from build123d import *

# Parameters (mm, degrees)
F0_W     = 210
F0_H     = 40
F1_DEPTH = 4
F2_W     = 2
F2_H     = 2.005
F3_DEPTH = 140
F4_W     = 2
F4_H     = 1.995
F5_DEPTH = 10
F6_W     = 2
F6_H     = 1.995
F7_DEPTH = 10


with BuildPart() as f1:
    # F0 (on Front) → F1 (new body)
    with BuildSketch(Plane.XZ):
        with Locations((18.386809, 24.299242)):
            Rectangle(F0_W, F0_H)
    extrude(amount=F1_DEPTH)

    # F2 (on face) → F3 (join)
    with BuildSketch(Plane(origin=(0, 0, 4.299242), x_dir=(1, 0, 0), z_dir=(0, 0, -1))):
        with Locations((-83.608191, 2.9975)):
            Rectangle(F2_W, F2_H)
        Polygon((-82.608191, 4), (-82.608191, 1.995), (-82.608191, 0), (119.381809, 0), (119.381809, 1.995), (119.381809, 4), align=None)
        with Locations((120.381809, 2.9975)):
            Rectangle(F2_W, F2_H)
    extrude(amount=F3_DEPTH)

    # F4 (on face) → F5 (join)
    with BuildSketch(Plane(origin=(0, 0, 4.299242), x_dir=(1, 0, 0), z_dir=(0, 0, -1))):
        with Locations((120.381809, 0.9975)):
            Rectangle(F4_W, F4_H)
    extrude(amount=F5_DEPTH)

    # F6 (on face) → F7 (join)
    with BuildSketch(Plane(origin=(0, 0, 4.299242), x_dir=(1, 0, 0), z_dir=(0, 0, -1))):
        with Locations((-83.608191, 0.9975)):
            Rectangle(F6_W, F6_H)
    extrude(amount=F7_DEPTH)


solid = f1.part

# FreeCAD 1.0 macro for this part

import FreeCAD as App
import Part
import Sketcher
from FreeCAD import Vector


def add_polygon(sketch, points):
    """Adds a closed chain of lines whose ends are joined by coincident constraints."""
    first, n = sketch.GeometryCount, len(points)
    for a, b in zip(points, points[1:] + points[:1]):
        sketch.addGeometry(Part.LineSegment(App.Vector(*a, 0), App.Vector(*b, 0)), False)
    for i in range(n):
        sketch.addConstraint(Sketcher.Constraint("Coincident", first + i, 2, first + (i + 1) % n, 1))

doc = App.newDocument("Part")
body = doc.addObject("PartDesign::Body", "Body")

# Sketch on XZ plane
sketch1 = body.newObject("Sketcher::SketchObject", "Sketch")
sketch1.AttachmentSupport = (doc.getObject("XZ_Plane"), [""])
sketch1.MapMode = "FlatFace"
add_polygon(sketch1, [(-87, 44), (-87, 4), (123, 4), (123, 44)])  # lines 0-3
sketch1.addConstraint(Sketcher.Constraint("Vertical", 0))
sketch1.addConstraint(Sketcher.Constraint("Horizontal", 1))
sketch1.addConstraint(Sketcher.Constraint("Vertical", 2))
sketch1.addConstraint(Sketcher.Constraint("Horizontal", 3))
sketch1.addConstraint(Sketcher.Constraint("DistanceX", 1, 1, 1, 2, 210.0))
sketch1.addConstraint(Sketcher.Constraint("DistanceY", 0, 2, 0, 1, 40.0))
sketch1.addConstraint(Sketcher.Constraint("DistanceX", 0, 2, -1, 1, 86.613191))
sketch1.addConstraint(Sketcher.Constraint("DistanceY", -1, 1, 0, 2, 4.299242))
pad1 = body.newObject("PartDesign::Pad", "Pad")
pad1.Profile = sketch1
pad1.Length = 4

# Sketch on XY plane
sketch2 = body.newObject("Sketcher::SketchObject", "Sketch001")
sketch2.AttachmentSupport = (doc.getObject("XY_Plane"), [""])
sketch2.MapMode = "FlatFace"
sketch2.AttachmentOffset = App.Placement(Vector(0, 0, 4.299242), App.Rotation())
add_polygon(sketch2, [(-84.6, -4), (-84.6, -2), (-82.6, -2), (-82.6, 0), (119.4, 0), (119.4, -2), (121.4, -2), (121.4, -4)])  # lines 0-7
sketch2.addConstraint(Sketcher.Constraint("Vertical", 0))
sketch2.addConstraint(Sketcher.Constraint("Horizontal", 1))
sketch2.addConstraint(Sketcher.Constraint("Vertical", 2))
sketch2.addConstraint(Sketcher.Constraint("Horizontal", 3))
sketch2.addConstraint(Sketcher.Constraint("Vertical", 4))
sketch2.addConstraint(Sketcher.Constraint("Horizontal", 5))
sketch2.addConstraint(Sketcher.Constraint("Vertical", 6))
sketch2.addConstraint(Sketcher.Constraint("Horizontal", 7))
sketch2.addConstraint(Sketcher.Constraint("PointOnObject", 2, 2, -1))
sketch2.addConstraint(Sketcher.Constraint("Horizontal", 1, 2, 4, 2))
sketch2.addConstraint(Sketcher.Constraint("Equal", 1, 5))
sketch2.addConstraint(Sketcher.Constraint("DistanceX", 1, 1, 1, 2, 2.0))
sketch2.addConstraint(Sketcher.Constraint("DistanceY", 6, 2, -1, 1, 4.0))
sketch2.addConstraint(Sketcher.Constraint("DistanceX", 3, 1, 3, 2, 201.99))
sketch2.addConstraint(Sketcher.Constraint("DistanceY", 0, 1, 0, 2, 2.005))
sketch2.addConstraint(Sketcher.Constraint("DistanceX", 0, 2, -1, 1, 84.608191))
pad2 = body.newObject("PartDesign::Pad", "Pad001")
pad2.Profile = sketch2
pad2.Length = 140
pad2.Reversed = True

# Sketch on XY plane
sketch3 = body.newObject("Sketcher::SketchObject", "Sketch002")
sketch3.AttachmentSupport = (doc.getObject("XY_Plane"), [""])
sketch3.MapMode = "FlatFace"
sketch3.AttachmentOffset = App.Placement(Vector(0, 0, 4.299242), App.Rotation())
add_polygon(sketch3, [(119.4, -2), (119.4, 0), (121.4, 0), (121.4, -2)])  # lines 0-3
sketch3.addConstraint(Sketcher.Constraint("Vertical", 0))
sketch3.addConstraint(Sketcher.Constraint("Horizontal", 1))
sketch3.addConstraint(Sketcher.Constraint("Vertical", 2))
sketch3.addConstraint(Sketcher.Constraint("Horizontal", 3))
sketch3.addConstraint(Sketcher.Constraint("PointOnObject", 0, 2, -1))
sketch3.addConstraint(Sketcher.Constraint("DistanceX", 1, 1, 1, 2, 2.0))
sketch3.addConstraint(Sketcher.Constraint("DistanceY", 0, 1, 0, 2, 1.995))
sketch3.addConstraint(Sketcher.Constraint("DistanceX", -1, 1, 0, 2, 119.381809))
pad3 = body.newObject("PartDesign::Pad", "Pad002")
pad3.Profile = sketch3
pad3.Length = 10
pad3.Reversed = True

# Sketch on XY plane
sketch4 = body.newObject("Sketcher::SketchObject", "Sketch003")
sketch4.AttachmentSupport = (doc.getObject("XY_Plane"), [""])
sketch4.MapMode = "FlatFace"
sketch4.AttachmentOffset = App.Placement(Vector(0, 0, 4.299242), App.Rotation())
add_polygon(sketch4, [(-84.6, -2), (-84.6, 0), (-82.6, 0), (-82.6, -2)])  # lines 0-3
sketch4.addConstraint(Sketcher.Constraint("Vertical", 0))
sketch4.addConstraint(Sketcher.Constraint("Horizontal", 1))
sketch4.addConstraint(Sketcher.Constraint("Vertical", 2))
sketch4.addConstraint(Sketcher.Constraint("Horizontal", 3))
sketch4.addConstraint(Sketcher.Constraint("PointOnObject", 0, 2, -1))
sketch4.addConstraint(Sketcher.Constraint("DistanceX", 1, 1, 1, 2, 2.0))
sketch4.addConstraint(Sketcher.Constraint("DistanceY", 0, 1, 0, 2, 1.995))
sketch4.addConstraint(Sketcher.Constraint("DistanceX", 0, 2, -1, 1, 84.608191))
pad4 = body.newObject("PartDesign::Pad", "Pad003")
pad4.Profile = sketch4
pad4.Length = 10
pad4.Reversed = True

doc.recompute()
